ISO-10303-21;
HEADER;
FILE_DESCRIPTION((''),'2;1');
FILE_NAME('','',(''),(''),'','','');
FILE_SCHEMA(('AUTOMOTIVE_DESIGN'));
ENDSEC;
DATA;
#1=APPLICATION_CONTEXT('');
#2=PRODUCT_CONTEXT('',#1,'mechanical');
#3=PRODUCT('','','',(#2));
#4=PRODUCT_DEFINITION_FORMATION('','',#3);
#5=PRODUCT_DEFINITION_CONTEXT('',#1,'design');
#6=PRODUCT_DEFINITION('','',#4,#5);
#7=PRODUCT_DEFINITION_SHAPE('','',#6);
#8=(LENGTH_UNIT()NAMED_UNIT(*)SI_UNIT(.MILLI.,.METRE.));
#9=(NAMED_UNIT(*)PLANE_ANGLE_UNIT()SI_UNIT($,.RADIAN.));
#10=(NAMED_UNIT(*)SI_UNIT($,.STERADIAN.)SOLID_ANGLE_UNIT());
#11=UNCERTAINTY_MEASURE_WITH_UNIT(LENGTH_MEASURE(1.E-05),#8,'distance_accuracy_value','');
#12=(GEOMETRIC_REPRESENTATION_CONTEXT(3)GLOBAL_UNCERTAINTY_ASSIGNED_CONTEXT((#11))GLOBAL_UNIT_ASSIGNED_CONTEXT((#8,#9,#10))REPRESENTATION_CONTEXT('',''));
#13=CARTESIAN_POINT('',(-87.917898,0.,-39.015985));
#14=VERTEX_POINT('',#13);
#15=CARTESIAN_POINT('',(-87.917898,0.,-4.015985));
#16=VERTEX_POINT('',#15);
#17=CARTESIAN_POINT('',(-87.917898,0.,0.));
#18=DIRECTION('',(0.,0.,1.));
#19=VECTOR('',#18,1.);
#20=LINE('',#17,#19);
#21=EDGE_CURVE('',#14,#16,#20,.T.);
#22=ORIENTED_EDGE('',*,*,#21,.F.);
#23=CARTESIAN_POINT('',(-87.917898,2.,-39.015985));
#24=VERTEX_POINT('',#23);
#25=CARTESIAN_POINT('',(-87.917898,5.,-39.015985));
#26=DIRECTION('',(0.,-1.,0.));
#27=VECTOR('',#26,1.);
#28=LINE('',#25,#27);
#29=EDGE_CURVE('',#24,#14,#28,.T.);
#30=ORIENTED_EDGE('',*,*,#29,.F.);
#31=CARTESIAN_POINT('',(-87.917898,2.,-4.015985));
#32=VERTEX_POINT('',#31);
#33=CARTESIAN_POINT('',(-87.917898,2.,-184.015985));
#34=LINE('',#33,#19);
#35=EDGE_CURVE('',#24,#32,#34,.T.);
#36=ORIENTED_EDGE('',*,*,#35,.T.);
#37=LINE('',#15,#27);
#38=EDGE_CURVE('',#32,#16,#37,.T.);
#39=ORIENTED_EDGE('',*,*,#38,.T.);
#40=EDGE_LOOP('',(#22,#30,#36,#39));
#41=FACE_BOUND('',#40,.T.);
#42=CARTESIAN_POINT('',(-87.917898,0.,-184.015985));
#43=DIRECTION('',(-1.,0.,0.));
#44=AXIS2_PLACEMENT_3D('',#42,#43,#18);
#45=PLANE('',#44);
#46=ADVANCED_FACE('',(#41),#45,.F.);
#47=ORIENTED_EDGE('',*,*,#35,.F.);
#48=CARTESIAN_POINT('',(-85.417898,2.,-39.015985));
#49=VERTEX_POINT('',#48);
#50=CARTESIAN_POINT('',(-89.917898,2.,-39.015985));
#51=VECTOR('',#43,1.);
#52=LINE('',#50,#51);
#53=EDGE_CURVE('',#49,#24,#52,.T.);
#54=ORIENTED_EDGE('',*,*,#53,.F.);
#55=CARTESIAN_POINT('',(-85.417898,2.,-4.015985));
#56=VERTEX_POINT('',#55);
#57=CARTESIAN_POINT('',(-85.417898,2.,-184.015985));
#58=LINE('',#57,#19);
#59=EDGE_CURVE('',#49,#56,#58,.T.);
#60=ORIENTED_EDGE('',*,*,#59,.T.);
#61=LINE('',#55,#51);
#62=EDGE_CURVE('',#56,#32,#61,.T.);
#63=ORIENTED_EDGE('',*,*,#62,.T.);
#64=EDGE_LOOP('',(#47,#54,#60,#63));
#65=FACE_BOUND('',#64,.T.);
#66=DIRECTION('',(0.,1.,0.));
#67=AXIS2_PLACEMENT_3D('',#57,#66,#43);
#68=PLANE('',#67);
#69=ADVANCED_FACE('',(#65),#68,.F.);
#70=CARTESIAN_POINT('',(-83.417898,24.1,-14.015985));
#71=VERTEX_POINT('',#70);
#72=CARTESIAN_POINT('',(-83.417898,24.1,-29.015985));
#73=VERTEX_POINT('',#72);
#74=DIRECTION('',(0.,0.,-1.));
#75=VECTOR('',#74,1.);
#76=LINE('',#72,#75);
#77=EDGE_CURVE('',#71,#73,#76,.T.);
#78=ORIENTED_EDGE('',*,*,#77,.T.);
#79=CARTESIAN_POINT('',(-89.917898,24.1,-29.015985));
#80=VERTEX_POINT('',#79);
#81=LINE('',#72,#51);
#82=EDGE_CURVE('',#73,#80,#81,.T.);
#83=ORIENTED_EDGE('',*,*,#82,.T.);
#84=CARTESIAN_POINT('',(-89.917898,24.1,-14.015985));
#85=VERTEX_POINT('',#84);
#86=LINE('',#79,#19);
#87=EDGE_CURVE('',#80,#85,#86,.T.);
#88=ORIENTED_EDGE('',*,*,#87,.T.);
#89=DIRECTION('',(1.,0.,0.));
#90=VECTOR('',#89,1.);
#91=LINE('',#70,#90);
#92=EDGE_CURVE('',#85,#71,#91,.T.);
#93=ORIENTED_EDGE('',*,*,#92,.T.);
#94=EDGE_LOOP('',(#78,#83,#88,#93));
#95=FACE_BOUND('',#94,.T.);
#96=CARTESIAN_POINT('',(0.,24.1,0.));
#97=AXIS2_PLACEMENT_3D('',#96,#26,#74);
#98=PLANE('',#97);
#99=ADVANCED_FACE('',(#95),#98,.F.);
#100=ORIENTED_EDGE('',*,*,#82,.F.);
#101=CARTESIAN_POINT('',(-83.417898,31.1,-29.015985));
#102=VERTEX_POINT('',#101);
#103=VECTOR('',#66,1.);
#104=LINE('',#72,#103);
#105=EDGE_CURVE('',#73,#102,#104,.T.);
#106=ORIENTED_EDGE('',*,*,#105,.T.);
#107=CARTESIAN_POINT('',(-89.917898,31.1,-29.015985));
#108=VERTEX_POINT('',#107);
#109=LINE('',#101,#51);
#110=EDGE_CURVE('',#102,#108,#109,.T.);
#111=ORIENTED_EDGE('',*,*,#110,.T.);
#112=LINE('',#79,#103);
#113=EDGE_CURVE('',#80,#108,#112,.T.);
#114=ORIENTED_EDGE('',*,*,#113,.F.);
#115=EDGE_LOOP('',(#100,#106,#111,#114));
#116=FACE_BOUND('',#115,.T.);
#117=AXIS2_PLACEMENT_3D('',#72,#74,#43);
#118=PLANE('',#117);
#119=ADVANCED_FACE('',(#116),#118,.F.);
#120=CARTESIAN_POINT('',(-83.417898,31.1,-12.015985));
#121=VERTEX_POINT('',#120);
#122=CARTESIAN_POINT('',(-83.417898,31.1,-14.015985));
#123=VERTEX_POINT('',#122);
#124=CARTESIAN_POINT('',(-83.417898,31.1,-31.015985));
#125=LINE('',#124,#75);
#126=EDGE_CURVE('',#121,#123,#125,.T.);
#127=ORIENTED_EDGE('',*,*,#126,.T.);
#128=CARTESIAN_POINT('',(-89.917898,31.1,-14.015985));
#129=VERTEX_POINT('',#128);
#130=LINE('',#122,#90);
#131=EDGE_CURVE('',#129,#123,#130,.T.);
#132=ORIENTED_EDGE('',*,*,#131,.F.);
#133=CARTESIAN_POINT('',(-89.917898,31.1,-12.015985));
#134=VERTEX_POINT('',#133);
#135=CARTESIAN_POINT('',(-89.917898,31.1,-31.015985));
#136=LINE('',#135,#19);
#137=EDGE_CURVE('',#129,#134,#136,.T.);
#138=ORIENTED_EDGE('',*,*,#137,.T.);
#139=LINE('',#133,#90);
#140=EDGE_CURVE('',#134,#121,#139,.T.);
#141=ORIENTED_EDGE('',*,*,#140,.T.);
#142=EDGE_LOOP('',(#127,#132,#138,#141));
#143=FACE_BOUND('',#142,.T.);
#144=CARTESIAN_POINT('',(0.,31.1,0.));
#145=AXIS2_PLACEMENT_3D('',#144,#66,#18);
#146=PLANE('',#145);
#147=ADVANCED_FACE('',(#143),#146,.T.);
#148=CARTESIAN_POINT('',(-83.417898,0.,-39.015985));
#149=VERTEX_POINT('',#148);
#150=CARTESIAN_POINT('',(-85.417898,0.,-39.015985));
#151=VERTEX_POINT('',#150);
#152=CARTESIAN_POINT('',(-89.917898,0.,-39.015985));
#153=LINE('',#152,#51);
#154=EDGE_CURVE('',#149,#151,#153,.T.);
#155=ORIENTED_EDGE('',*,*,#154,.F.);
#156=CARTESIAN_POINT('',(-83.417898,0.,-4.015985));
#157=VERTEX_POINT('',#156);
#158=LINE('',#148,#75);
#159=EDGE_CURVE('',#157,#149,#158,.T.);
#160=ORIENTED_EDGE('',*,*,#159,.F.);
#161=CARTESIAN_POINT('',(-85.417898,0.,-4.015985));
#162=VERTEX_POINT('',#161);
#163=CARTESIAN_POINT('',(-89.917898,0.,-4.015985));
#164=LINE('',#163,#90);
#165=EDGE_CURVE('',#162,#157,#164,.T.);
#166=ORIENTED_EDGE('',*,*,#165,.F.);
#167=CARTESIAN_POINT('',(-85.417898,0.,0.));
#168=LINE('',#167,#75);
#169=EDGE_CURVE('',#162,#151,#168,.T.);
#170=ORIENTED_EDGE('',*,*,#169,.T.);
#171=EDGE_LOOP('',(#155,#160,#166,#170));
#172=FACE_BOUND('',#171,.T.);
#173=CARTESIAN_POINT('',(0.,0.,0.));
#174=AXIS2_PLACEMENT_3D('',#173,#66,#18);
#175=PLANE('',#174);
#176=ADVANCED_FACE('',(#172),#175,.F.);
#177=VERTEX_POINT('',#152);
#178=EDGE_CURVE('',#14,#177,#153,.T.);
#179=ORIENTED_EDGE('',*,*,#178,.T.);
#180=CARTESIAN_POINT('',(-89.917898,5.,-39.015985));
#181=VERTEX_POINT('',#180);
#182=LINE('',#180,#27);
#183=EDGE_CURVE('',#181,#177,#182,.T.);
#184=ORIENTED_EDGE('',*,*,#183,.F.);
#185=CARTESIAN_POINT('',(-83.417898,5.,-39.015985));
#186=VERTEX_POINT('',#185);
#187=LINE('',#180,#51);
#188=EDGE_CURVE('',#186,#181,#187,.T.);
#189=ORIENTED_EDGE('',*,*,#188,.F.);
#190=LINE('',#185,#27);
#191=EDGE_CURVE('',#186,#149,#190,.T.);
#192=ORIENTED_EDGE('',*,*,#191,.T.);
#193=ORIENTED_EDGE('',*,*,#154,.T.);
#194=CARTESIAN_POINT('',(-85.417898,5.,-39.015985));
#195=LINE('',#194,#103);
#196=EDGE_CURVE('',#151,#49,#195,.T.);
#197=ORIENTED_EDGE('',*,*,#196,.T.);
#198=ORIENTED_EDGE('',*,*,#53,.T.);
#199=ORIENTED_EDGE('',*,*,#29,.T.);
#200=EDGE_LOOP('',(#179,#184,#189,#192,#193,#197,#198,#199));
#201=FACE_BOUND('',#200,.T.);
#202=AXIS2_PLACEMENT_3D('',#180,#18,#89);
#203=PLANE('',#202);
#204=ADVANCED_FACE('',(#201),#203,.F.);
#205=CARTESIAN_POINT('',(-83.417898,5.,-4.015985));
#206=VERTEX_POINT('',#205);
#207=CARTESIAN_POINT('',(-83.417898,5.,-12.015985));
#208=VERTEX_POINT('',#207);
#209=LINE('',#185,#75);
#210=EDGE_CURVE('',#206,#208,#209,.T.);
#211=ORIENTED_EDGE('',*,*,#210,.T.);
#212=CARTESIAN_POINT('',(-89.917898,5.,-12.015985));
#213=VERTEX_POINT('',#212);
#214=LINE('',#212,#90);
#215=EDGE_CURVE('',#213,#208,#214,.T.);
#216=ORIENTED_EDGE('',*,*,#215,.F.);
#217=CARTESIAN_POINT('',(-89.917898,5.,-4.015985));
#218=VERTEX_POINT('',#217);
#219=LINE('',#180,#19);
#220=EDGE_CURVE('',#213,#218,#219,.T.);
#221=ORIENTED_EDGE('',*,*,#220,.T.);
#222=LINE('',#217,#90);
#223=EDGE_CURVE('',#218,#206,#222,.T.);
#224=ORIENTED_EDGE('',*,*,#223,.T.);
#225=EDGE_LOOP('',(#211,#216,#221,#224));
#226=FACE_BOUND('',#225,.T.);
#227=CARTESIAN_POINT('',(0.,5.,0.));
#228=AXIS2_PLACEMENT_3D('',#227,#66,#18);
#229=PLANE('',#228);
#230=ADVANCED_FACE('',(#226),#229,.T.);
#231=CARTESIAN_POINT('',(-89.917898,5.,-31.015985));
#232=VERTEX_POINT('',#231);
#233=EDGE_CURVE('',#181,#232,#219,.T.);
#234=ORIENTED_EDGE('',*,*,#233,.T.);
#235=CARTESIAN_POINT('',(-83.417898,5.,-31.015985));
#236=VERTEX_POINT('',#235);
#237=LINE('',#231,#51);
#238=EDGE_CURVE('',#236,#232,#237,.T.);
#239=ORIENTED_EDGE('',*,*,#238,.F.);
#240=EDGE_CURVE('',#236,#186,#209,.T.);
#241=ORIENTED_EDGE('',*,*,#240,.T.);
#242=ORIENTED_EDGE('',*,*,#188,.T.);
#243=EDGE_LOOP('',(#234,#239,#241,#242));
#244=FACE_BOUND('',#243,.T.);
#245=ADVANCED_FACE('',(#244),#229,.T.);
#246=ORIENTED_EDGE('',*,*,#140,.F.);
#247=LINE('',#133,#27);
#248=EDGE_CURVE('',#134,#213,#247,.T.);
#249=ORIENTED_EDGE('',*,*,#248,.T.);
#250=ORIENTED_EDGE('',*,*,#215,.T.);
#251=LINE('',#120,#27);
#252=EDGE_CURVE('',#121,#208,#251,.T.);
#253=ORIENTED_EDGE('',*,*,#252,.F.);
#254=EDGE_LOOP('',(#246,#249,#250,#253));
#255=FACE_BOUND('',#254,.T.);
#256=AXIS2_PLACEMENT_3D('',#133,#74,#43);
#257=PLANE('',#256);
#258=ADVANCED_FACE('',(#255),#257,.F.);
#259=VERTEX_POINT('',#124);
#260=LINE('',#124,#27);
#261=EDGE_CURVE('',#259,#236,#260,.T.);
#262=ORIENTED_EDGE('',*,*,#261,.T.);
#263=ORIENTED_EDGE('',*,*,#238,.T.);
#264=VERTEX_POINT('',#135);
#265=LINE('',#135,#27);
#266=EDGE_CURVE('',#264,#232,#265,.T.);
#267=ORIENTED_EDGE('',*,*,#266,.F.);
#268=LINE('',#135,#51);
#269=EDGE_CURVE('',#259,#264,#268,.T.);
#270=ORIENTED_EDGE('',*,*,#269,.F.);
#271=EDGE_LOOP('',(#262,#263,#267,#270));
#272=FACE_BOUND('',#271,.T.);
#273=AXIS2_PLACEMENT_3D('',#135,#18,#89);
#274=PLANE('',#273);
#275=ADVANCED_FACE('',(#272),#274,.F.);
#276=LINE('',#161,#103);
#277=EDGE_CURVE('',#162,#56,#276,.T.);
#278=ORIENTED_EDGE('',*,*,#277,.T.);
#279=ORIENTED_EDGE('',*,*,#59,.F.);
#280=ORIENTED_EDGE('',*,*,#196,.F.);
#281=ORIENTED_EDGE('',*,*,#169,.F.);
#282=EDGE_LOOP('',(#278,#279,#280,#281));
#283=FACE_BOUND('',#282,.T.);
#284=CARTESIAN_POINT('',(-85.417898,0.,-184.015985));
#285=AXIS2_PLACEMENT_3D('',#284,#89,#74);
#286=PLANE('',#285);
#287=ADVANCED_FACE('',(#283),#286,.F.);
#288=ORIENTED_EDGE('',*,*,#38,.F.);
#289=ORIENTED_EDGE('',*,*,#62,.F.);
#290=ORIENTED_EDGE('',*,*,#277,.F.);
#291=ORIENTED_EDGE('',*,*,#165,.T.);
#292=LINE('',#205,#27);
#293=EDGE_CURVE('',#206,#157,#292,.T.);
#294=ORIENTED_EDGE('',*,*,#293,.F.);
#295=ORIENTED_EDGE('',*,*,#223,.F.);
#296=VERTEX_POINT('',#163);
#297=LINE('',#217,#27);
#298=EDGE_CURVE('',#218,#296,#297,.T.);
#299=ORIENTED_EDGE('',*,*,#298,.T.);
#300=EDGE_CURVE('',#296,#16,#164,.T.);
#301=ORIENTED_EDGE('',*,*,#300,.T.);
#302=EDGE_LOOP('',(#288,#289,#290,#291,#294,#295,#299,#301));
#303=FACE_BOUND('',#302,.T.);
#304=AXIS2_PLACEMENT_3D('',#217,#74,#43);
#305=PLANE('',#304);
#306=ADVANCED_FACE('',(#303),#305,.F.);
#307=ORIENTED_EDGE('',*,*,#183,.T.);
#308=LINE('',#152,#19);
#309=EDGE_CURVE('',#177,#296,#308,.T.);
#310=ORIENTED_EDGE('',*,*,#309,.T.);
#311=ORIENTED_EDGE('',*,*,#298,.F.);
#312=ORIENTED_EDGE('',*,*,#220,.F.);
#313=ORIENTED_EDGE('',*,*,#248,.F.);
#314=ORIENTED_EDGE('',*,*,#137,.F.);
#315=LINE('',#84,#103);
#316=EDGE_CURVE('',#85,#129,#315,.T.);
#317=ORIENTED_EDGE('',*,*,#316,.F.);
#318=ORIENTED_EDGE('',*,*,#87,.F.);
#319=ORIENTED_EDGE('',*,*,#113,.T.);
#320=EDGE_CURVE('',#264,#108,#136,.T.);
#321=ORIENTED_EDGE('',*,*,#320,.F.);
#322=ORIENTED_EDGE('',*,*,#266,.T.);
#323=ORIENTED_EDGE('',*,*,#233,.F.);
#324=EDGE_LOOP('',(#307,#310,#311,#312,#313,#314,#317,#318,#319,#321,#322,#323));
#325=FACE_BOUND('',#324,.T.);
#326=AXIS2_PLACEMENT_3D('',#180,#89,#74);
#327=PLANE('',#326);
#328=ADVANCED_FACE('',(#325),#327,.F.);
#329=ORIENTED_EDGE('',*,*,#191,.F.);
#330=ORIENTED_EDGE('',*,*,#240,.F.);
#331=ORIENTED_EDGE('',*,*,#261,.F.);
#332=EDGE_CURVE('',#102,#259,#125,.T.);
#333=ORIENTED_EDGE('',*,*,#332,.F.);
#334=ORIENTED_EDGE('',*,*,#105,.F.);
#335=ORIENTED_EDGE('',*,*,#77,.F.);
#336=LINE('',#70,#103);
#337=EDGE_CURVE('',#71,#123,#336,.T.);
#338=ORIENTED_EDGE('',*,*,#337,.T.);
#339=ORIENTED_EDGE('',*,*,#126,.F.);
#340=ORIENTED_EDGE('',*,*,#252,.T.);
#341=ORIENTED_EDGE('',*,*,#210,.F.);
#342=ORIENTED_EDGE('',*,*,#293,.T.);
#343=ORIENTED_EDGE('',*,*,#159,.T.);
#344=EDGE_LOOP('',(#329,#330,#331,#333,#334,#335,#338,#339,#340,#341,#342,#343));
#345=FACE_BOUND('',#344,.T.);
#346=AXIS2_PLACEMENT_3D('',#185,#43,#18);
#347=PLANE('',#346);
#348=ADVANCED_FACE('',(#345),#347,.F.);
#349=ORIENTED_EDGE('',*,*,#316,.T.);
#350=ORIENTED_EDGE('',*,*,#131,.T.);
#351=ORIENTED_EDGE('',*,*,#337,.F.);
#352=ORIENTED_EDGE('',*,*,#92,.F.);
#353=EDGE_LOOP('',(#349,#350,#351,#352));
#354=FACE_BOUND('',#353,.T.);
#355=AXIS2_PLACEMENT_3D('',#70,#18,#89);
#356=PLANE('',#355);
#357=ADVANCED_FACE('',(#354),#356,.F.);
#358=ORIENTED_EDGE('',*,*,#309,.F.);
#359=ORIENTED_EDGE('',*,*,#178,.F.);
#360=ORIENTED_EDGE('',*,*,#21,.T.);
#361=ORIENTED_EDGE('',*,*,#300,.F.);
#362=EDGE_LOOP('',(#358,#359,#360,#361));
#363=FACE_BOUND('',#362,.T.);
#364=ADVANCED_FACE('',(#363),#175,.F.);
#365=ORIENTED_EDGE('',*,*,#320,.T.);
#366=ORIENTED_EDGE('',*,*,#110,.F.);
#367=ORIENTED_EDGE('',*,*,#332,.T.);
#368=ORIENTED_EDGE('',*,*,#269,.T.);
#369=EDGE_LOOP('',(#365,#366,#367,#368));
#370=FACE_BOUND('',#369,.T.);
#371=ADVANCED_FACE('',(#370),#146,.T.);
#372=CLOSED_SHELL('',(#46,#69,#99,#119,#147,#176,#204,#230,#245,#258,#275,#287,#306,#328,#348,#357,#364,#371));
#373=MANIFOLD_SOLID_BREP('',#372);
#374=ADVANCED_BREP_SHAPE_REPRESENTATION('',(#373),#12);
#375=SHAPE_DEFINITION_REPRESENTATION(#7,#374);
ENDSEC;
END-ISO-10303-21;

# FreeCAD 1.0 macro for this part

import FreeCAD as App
import Part
import Sketcher
from FreeCAD import Vector

doc = App.newDocument("Part")
body = doc.addObject("PartDesign::Body", "Body")

sketch1 = body.newObject("Sketcher::SketchObject", "Sketch")
sketch1.AttachmentSupport = (doc.getObject("XZ_Plane"), [""])
sketch1.MapMode = "FlatFace"
sketch1.addGeometry([
    Part.LineSegment(Vector(-90, -39, 0), Vector(-90, -4, 0)),
    Part.LineSegment(Vector(-90, -4, 0), Vector(-83, -4, 0)),
    Part.LineSegment(Vector(-83, -4, 0), Vector(-83, -39, 0)),
    Part.LineSegment(Vector(-83, -39, 0), Vector(-90, -39, 0)),
], False)
sketch1.addConstraint([
    Sketcher.Constraint("Coincident", 0, 2, 1, 1),
    Sketcher.Constraint("Coincident", 1, 2, 2, 1),
    Sketcher.Constraint("Coincident", 2, 2, 3, 1),
    Sketcher.Constraint("Coincident", 3, 2, 0, 1),
    Sketcher.Constraint("Vertical", 0),
    Sketcher.Constraint("Horizontal", 1),
    Sketcher.Constraint("Vertical", 2),
    Sketcher.Constraint("Horizontal", 3),
    Sketcher.Constraint("DistanceY", 0, 1, 0, 2, 35.0),
    Sketcher.Constraint("DistanceX", 1, 1, 1, 2, 6.5),
    Sketcher.Constraint("DistanceX", 0, 2, -1, 1, 89.917898),
    Sketcher.Constraint("DistanceY", 0, 2, -1, 1, 4.015985),
])
pad1 = body.newObject("PartDesign::Pad", "Pad")
pad1.Profile = sketch1
pad1.Length = 5
pad1.Reversed = True

sketch2 = body.newObject("Sketcher::SketchObject", "Sketch001")
sketch2.AttachmentSupport = (doc.getObject("XY_Plane"), [""])
sketch2.MapMode = "FlatFace"
sketch2.AttachmentOffset = App.Placement(Vector(0, 0, -4.015985), App.Rotation())
sketch2.addGeometry([
    Part.LineSegment(Vector(-87.9, 2, 0), Vector(-87.9, 0, 0)),
    Part.LineSegment(Vector(-87.9, 0, 0), Vector(-85.4, 0, 0)),
    Part.LineSegment(Vector(-85.4, 0, 0), Vector(-85.4, 2, 0)),
    Part.LineSegment(Vector(-85.4, 2, 0), Vector(-87.9, 2, 0)),
], False)
sketch2.addConstraint([
    Sketcher.Constraint("Coincident", 0, 2, 1, 1),
    Sketcher.Constraint("Coincident", 1, 2, 2, 1),
    Sketcher.Constraint("Coincident", 2, 2, 3, 1),
    Sketcher.Constraint("Coincident", 3, 2, 0, 1),
    Sketcher.Constraint("Vertical", 0),
    Sketcher.Constraint("Horizontal", 1),
    Sketcher.Constraint("Vertical", 2),
    Sketcher.Constraint("Horizontal", 3),
    Sketcher.Constraint("PointOnObject", 0, 2, -1),
    Sketcher.Constraint("DistanceY", 0, 2, 0, 1, 2.0),
    Sketcher.Constraint("DistanceX", 1, 1, 1, 2, 2.5),
    Sketcher.Constraint("DistanceX", 0, 2, -1, 1, 87.917898),
])
pocket1 = body.newObject("PartDesign::Pocket", "Pocket")
pocket1.Profile = sketch2
pocket1.Length = 180

sketch3 = body.newObject("Sketcher::SketchObject", "Sketch002")
sketch3.AttachmentSupport = (doc.getObject("XZ_Plane"), [""])
sketch3.MapMode = "FlatFace"
sketch3.AttachmentOffset = App.Placement(Vector(0, 0, -5), App.Rotation())
sketch3.addGeometry([
    Part.LineSegment(Vector(-90, -31, 0), Vector(-90, -12, 0)),
    Part.LineSegment(Vector(-90, -12, 0), Vector(-83, -12, 0)),
    Part.LineSegment(Vector(-83, -12, 0), Vector(-83, -31, 0)),
    Part.LineSegment(Vector(-83, -31, 0), Vector(-90, -31, 0)),
], False)
sketch3.addConstraint([
    Sketcher.Constraint("Coincident", 0, 2, 1, 1),
    Sketcher.Constraint("Coincident", 1, 2, 2, 1),
    Sketcher.Constraint("Coincident", 2, 2, 3, 1),
    Sketcher.Constraint("Coincident", 3, 2, 0, 1),
    Sketcher.Constraint("Vertical", 0),
    Sketcher.Constraint("Horizontal", 1),
    Sketcher.Constraint("Vertical", 2),
    Sketcher.Constraint("Horizontal", 3),
    Sketcher.Constraint("DistanceY", 0, 1, 0, 2, 19.0),
    Sketcher.Constraint("DistanceX", 1, 1, 1, 2, 6.5),
    Sketcher.Constraint("DistanceX", 0, 2, -1, 1, 89.917898),
    Sketcher.Constraint("DistanceY", 0, 2, -1, 1, 12.015985),
])
pad2 = body.newObject("PartDesign::Pad", "Pad001")
pad2.Profile = sketch3
pad2.Length = 26.1
pad2.Reversed = True

sketch4 = body.newObject("Sketcher::SketchObject", "Sketch003")
sketch4.AttachmentSupport = (doc.getObject("XZ_Plane"), [""])
sketch4.MapMode = "FlatFace"
sketch4.AttachmentOffset = App.Placement(Vector(0, 0, -31.1), App.Rotation())
sketch4.addGeometry([
    Part.LineSegment(Vector(-90, -29, 0), Vector(-90, -14, 0)),
    Part.LineSegment(Vector(-90, -14, 0), Vector(-83, -14, 0)),
    Part.LineSegment(Vector(-83, -14, 0), Vector(-83, -29, 0)),
    Part.LineSegment(Vector(-83, -29, 0), Vector(-90, -29, 0)),
], False)
sketch4.addConstraint([
    Sketcher.Constraint("Coincident", 0, 2, 1, 1),
    Sketcher.Constraint("Coincident", 1, 2, 2, 1),
    Sketcher.Constraint("Coincident", 2, 2, 3, 1),
    Sketcher.Constraint("Coincident", 3, 2, 0, 1),
    Sketcher.Constraint("Vertical", 0),
    Sketcher.Constraint("Horizontal", 1),
    Sketcher.Constraint("Vertical", 2),
    Sketcher.Constraint("Horizontal", 3),
    Sketcher.Constraint("DistanceY", 0, 1, 0, 2, 15.0),
    Sketcher.Constraint("DistanceX", 1, 1, 1, 2, 6.5),
    Sketcher.Constraint("DistanceX", 0, 2, -1, 1, 89.917898),
    Sketcher.Constraint("DistanceY", 0, 2, -1, 1, 14.015985),
])
pocket2 = body.newObject("PartDesign::Pocket", "Pocket001")
pocket2.Profile = sketch4
pocket2.Length = 7
pocket2.Reversed = True

doc.recompute()
